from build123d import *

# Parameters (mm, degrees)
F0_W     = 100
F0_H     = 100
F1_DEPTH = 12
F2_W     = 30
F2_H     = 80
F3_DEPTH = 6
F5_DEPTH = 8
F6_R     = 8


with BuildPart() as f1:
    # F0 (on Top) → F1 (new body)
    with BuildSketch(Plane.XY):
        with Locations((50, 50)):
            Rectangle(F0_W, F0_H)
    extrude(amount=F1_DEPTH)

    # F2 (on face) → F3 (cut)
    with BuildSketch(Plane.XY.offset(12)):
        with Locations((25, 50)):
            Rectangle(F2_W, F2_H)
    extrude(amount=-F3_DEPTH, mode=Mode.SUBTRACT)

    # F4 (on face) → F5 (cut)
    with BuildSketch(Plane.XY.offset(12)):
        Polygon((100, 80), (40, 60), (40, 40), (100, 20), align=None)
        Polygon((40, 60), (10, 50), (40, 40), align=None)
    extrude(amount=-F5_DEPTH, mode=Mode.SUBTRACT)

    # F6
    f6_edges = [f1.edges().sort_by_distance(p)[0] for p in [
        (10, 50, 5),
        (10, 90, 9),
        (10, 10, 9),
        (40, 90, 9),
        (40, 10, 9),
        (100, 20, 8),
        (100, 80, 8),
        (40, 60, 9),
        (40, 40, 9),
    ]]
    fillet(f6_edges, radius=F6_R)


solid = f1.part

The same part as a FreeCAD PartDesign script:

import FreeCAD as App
import Part
import Sketcher

V = App.Vector


def edges_at(feature, points):
    """Names of the edges that pass closest to the given points."""
    edges = feature.Shape.Edges
    near = lambda p: min(range(len(edges)), key=lambda i: edges[i].distToShape(Part.Vertex(*p))[0])
    return sorted({f"Edge{near(p) + 1}" for p in points})

doc = App.newDocument("Part")
body = doc.addObject("PartDesign::Body", "Body")

# Sketch on XY plane
sketch1 = doc.addObject("Sketcher::SketchObject", "Sketch")
body.addObject(sketch1)
sketch1.AttachmentSupport = (doc.XY_Plane, [""])
sketch1.MapMode = "FlatFace"
sketch1.addGeometry([
    Part.LineSegment(V(0, 100, 0), V(0, 0, 0)),
    Part.LineSegment(V(0, 0, 0), V(100, 0, 0)),
    Part.LineSegment(V(100, 0, 0), V(100, 100, 0)),
    Part.LineSegment(V(100, 100, 0), V(0, 100, 0)),
], False)
sketch1.addConstraint([
    Sketcher.Constraint("Coincident", 0, 2, 1, 1),
    Sketcher.Constraint("Coincident", 1, 2, 2, 1),
    Sketcher.Constraint("Coincident", 2, 2, 3, 1),
    Sketcher.Constraint("Coincident", 3, 2, 0, 1),
    Sketcher.Constraint("Vertical", 0),
    Sketcher.Constraint("Horizontal", 1),
    Sketcher.Constraint("Vertical", 2),
    Sketcher.Constraint("Horizontal", 3),
    Sketcher.Constraint("Coincident", 0, 2, -1, 1),
    Sketcher.Constraint("Equal", 3, 0),
    Sketcher.Constraint("DistanceX", 1, 1, 1, 2, 100.0),
])
pad1 = doc.addObject("PartDesign::Pad", "Pad")
body.addObject(pad1)
pad1.Profile = sketch1
pad1.Length = 12

# Sketch on XY plane
sketch2 = doc.addObject("Sketcher::SketchObject", "Sketch001")
body.addObject(sketch2)
sketch2.AttachmentSupport = (doc.XY_Plane, [""])
sketch2.MapMode = "FlatFace"
sketch2.AttachmentOffset = App.Placement(V(0, 0, 12), App.Rotation())
sketch2.addGeometry([
    Part.LineSegment(V(10, 90, 0), V(10, 10, 0)),
    Part.LineSegment(V(10, 10, 0), V(40, 10, 0)),
    Part.LineSegment(V(40, 10, 0), V(40, 90, 0)),
    Part.LineSegment(V(40, 90, 0), V(10, 90, 0)),
], False)
sketch2.addConstraint([
    Sketcher.Constraint("Coincident", 0, 2, 1, 1),
    Sketcher.Constraint("Coincident", 1, 2, 2, 1),
    Sketcher.Constraint("Coincident", 2, 2, 3, 1),
    Sketcher.Constraint("Coincident", 3, 2, 0, 1),
    Sketcher.Constraint("Vertical", 0),
    Sketcher.Constraint("Horizontal", 1),
    Sketcher.Constraint("Vertical", 2),
    Sketcher.Constraint("Horizontal", 3),
    Sketcher.Constraint("DistanceX", 1, 1, 1, 2, 30.0),
    Sketcher.Constraint("DistanceY", 0, 2, 0, 1, 80.0),
    Sketcher.Constraint("DistanceX", -1, 1, 0, 2, 10.0),
    Sketcher.Constraint("DistanceY", -1, 1, 0, 2, 10.0),
])
pocket1 = doc.addObject("PartDesign::Pocket", "Pocket")
body.addObject(pocket1)
pocket1.Profile = sketch2
pocket1.Length = 6

# Sketch on XY plane
sketch3 = doc.addObject("Sketcher::SketchObject", "Sketch002")
body.addObject(sketch3)
sketch3.AttachmentSupport = (doc.XY_Plane, [""])
sketch3.MapMode = "FlatFace"
sketch3.AttachmentOffset = App.Placement(V(0, 0, 12), App.Rotation())
sketch3.addGeometry([
    Part.LineSegment(V(100, 80, 0), V(10, 50, 0)),
    Part.LineSegment(V(10, 50, 0), V(100, 20, 0)),
    Part.LineSegment(V(100, 20, 0), V(100, 80, 0)),
], False)
sketch3.addConstraint([
    Sketcher.Constraint("Coincident", 0, 2, 1, 1),
    Sketcher.Constraint("Coincident", 1, 2, 2, 1),
    Sketcher.Constraint("Coincident", 2, 2, 0, 1),
    Sketcher.Constraint("Vertical", 2),
    Sketcher.Constraint("Equal", 0, 1),
    Sketcher.Constraint("DistanceY", 2, 1, 2, 2, 60.0),
    Sketcher.Constraint("DistanceX", -1, 1, 0, 2, 10.0),
    Sketcher.Constraint("DistanceY", -1, 1, 0, 2, 50.0),
    Sketcher.Constraint("DistanceX", -1, 1, 1, 2, 100.0),
])
pocket2 = doc.addObject("PartDesign::Pocket", "Pocket001")
body.addObject(pocket2)
pocket2.Profile = sketch3
pocket2.Length = 8
doc.recompute()

fillet = doc.addObject("PartDesign::Fillet", "Fillet")
body.addObject(fillet)
fillet.Base = (pocket2, edges_at(pocket2, [
    (10, 50, 5),
    (10, 90, 9),
    (10, 10, 9),
    (40, 90, 9),
    (40, 10, 9),
    (100, 20, 8),
    (100, 80, 8),
    (40, 60, 9),
    (40, 40, 9),
]))
fillet.Radius = 8

doc.recompute()
